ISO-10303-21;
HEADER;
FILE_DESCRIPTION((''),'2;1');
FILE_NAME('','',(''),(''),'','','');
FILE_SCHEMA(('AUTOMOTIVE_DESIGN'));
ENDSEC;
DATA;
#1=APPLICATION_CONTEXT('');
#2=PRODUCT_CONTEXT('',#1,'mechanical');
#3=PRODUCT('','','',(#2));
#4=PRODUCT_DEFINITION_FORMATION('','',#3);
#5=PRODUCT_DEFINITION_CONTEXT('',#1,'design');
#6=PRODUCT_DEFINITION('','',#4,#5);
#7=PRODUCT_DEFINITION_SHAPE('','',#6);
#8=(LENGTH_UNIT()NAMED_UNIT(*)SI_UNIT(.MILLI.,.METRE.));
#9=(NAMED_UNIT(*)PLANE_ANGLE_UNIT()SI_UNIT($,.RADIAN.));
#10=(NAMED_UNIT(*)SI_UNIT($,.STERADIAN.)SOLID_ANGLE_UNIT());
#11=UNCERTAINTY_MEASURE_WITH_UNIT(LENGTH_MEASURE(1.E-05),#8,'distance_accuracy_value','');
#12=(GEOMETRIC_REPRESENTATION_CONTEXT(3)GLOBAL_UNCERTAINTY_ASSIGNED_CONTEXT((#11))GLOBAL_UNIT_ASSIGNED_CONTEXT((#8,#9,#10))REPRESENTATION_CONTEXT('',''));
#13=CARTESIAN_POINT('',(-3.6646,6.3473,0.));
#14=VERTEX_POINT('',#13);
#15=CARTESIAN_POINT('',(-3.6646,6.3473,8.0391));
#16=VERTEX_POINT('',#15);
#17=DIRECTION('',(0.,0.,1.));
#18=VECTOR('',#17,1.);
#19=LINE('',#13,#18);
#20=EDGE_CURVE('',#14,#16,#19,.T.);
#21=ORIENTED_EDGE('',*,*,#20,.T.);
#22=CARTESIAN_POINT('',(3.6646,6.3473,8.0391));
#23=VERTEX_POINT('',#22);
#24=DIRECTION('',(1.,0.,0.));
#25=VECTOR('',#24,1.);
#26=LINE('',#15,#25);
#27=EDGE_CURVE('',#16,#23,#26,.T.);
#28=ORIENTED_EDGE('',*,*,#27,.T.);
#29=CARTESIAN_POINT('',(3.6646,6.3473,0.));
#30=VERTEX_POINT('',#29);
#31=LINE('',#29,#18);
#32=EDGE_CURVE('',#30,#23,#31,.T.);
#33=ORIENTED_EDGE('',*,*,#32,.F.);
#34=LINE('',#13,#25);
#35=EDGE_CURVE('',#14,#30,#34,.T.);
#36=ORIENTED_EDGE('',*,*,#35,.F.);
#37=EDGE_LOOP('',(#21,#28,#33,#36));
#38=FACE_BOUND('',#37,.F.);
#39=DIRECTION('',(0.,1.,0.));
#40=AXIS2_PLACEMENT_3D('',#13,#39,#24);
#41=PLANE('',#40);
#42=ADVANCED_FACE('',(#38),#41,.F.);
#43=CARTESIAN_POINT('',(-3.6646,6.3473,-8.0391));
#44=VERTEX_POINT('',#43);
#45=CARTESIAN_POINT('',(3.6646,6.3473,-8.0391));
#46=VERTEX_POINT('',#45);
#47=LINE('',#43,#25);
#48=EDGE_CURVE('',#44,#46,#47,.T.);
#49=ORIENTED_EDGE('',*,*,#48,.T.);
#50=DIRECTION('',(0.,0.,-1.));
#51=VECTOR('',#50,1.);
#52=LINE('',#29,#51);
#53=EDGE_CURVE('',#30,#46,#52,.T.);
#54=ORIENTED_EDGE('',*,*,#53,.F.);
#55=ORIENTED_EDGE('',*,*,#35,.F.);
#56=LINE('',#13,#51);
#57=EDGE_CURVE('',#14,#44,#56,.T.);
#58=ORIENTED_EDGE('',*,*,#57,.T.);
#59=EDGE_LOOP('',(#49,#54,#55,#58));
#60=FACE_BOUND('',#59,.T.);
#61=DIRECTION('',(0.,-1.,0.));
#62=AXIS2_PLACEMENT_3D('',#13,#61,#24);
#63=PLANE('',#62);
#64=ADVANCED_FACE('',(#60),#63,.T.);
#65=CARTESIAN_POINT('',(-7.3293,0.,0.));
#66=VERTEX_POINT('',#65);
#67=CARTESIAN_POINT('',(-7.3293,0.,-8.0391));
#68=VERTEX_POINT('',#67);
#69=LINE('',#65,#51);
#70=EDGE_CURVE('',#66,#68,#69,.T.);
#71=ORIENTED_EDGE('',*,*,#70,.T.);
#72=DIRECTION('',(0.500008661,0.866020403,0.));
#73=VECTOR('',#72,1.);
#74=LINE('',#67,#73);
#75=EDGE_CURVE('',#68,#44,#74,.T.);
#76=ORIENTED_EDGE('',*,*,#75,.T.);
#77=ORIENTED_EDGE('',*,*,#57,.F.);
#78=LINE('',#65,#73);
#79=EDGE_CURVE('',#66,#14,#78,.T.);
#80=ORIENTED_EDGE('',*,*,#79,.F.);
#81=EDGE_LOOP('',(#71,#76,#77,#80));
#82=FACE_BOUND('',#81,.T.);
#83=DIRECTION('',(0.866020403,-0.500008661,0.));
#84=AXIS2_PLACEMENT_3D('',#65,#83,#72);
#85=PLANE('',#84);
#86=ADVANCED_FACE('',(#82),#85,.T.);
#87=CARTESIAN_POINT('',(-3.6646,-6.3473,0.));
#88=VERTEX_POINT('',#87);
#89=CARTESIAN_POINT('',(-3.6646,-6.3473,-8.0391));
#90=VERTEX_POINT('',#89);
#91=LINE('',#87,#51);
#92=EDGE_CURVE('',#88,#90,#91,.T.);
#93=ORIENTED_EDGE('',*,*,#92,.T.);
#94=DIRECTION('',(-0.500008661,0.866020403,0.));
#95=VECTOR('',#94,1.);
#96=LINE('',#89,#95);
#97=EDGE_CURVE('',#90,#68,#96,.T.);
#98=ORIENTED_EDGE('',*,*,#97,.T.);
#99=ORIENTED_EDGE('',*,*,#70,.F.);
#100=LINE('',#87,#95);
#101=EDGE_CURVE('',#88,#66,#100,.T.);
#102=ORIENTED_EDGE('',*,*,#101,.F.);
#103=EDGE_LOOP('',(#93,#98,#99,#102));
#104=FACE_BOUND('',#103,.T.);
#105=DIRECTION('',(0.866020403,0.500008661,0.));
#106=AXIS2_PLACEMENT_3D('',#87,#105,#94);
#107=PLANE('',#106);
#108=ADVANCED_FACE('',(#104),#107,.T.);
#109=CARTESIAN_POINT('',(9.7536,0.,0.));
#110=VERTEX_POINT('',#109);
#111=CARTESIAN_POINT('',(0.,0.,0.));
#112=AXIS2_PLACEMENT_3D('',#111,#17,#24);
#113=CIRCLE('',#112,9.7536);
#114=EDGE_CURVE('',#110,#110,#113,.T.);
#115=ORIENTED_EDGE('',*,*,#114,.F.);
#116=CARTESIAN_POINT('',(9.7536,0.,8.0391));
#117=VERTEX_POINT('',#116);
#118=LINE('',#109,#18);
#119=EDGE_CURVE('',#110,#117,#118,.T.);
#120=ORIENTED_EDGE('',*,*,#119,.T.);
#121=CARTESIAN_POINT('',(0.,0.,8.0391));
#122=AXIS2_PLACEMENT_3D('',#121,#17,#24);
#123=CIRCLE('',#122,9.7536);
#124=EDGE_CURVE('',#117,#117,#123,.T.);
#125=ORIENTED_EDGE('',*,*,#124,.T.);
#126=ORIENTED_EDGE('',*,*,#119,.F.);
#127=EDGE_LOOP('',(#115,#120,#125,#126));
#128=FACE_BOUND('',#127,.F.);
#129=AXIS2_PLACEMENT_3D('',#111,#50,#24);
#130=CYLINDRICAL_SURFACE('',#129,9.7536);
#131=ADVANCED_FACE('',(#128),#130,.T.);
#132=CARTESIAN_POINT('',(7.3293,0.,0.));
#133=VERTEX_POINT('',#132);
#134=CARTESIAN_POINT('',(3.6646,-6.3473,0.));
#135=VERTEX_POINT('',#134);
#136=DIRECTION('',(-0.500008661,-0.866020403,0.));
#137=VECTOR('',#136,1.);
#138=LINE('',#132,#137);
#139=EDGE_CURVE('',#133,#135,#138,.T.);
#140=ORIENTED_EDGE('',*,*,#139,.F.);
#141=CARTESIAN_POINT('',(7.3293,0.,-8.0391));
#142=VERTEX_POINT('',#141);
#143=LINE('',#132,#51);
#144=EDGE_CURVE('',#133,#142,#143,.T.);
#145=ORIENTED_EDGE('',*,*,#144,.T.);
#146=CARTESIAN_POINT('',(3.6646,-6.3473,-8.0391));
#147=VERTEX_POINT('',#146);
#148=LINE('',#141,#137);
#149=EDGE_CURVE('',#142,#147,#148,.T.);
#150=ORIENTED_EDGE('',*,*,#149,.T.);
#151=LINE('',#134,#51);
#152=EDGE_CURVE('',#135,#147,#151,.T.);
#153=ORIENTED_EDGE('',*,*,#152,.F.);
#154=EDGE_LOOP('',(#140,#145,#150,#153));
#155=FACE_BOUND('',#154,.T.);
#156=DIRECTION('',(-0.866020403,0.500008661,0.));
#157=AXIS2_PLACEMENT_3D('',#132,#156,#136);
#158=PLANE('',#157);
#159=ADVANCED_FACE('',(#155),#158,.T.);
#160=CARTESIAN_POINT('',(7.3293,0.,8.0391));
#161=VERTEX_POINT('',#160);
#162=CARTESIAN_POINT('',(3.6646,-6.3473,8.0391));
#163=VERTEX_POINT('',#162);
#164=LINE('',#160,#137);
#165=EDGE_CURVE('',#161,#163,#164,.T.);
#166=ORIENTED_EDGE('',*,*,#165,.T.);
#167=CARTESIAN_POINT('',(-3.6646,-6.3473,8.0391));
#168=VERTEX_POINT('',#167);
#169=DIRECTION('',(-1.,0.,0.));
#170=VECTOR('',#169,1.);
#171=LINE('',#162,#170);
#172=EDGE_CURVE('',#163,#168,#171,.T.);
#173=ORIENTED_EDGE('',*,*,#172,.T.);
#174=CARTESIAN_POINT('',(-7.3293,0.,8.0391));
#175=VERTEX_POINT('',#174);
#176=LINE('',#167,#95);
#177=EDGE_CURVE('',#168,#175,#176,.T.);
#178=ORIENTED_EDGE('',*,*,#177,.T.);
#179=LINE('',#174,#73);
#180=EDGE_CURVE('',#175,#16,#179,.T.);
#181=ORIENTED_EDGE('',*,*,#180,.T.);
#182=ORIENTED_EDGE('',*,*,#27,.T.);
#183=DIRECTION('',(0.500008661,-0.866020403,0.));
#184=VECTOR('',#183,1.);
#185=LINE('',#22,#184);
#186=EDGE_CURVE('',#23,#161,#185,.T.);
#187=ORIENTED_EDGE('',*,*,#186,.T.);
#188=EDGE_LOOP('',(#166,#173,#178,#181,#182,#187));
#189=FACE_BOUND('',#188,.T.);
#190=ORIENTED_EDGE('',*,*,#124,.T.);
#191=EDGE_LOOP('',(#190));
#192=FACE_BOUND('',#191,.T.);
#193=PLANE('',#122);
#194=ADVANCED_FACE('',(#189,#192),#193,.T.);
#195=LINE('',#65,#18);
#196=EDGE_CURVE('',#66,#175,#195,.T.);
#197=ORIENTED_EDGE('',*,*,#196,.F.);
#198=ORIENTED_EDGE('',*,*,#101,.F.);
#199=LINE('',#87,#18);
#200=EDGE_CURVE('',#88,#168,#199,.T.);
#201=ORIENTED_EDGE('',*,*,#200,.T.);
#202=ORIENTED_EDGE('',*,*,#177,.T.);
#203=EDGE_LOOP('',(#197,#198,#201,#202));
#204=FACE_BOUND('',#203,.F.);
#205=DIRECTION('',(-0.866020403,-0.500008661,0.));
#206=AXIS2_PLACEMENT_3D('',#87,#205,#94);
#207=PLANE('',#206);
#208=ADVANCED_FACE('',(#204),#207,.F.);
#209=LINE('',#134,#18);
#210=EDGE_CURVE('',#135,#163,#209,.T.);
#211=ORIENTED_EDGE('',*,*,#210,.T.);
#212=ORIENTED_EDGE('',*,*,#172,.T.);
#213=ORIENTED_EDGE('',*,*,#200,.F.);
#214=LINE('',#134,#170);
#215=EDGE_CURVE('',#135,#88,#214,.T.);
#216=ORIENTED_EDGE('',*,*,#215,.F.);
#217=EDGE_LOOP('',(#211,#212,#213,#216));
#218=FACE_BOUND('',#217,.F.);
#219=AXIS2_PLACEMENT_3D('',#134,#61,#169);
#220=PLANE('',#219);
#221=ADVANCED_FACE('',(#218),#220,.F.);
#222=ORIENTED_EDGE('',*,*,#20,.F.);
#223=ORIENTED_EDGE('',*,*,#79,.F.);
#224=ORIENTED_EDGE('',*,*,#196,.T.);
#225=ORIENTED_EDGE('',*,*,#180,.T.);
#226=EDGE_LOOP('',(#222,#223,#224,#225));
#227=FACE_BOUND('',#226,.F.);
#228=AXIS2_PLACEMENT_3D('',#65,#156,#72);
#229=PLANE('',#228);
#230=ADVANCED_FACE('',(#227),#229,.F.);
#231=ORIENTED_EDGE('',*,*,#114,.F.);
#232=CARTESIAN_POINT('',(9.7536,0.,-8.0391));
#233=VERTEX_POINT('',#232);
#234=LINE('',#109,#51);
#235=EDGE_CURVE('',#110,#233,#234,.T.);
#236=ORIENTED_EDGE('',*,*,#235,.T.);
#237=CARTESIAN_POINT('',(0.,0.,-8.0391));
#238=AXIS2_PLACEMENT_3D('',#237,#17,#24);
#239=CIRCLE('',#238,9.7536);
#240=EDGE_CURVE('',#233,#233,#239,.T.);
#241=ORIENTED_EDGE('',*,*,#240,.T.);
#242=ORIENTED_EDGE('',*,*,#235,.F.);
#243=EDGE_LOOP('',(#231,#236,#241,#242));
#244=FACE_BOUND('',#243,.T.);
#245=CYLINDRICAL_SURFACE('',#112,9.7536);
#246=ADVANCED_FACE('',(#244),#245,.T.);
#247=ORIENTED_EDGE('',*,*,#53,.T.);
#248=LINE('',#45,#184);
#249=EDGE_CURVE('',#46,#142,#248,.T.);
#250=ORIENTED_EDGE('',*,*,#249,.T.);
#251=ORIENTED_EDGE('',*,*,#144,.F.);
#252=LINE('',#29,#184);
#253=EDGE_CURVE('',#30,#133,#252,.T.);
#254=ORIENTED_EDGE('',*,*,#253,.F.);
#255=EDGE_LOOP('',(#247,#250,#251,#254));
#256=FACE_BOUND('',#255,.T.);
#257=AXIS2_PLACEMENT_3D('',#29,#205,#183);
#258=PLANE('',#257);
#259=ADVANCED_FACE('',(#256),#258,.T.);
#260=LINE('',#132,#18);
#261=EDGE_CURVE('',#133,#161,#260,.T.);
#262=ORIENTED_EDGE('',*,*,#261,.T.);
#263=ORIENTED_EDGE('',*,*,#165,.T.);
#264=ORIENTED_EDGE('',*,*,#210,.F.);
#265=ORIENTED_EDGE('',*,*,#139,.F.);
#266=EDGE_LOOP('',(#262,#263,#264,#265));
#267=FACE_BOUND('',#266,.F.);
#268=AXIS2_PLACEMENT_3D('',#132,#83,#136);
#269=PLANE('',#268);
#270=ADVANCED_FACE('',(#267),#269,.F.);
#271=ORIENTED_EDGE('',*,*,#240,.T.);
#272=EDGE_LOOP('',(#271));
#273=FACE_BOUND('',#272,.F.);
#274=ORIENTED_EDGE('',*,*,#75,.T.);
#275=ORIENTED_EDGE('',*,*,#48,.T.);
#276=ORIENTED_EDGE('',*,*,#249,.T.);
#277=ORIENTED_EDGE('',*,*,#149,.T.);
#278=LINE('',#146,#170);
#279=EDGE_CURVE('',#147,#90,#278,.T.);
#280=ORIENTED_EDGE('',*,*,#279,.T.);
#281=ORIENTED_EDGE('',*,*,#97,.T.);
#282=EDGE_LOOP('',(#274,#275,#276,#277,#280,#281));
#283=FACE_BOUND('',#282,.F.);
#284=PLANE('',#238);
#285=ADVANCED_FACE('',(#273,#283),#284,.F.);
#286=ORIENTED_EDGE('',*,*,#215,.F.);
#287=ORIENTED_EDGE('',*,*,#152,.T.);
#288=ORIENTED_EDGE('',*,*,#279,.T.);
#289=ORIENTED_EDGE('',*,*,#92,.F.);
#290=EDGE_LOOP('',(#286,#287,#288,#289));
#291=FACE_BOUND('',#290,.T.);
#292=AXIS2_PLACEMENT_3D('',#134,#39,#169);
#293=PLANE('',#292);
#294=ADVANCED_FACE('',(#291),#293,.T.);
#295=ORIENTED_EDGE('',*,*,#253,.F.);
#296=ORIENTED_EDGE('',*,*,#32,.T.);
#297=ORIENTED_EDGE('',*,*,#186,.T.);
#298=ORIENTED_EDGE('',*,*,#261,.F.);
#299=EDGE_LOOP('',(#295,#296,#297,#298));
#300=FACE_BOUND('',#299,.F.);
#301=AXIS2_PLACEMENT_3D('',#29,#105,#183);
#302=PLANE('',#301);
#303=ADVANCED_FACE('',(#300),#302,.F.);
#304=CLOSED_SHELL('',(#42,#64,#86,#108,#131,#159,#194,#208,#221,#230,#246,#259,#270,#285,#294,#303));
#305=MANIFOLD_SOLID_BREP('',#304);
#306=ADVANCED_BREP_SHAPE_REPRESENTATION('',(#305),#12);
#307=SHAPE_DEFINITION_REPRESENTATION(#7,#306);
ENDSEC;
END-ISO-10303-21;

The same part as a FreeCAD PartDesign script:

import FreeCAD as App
import Part
import Sketcher
Q = App.Units.Quantity

doc = App.newDocument("Part")
params = doc.addObject("Spreadsheet::Sheet", "Params")
for row, (alias, value) in enumerate([
    ("sketch1_diameter", "0.768 in"),
    ("pad1_length", "0.633 in"),
], start=1):
    params.set(f"A{row}", alias)
    params.set(f"B{row}", "=" + value)
    params.setAlias(f"B{row}", alias)

body = doc.addObject("PartDesign::Body", "Body")

# Sketch on XY plane
sketch1 = body.newObject("Sketcher::SketchObject", "Sketch")
sketch1.AttachmentSupport = (doc.getObject("XY_Plane"), [""])
sketch1.MapMode = "FlatFace"
sketch1.addGeometry([
    Part.Circle(App.Vector(0, 0, 0), App.Vector(0, 0, 1), 9.7536),  # 0
    Part.LineSegment(App.Vector(3.6646, 6.3473, 0), App.Vector(7.3293, 0, 0)),  # 1
    Part.LineSegment(App.Vector(7.3293, 0, 0), App.Vector(3.6646, -6.3473, 0)),  # 2
    Part.LineSegment(App.Vector(3.6646, -6.3473, 0), App.Vector(-3.6646, -6.3473, 0)),  # 3
    Part.LineSegment(App.Vector(-3.6646, -6.3473, 0), App.Vector(-7.3293, 0, 0)),  # 4
    Part.LineSegment(App.Vector(-7.3293, 0, 0), App.Vector(-3.6646, 6.3473, 0)),  # 5
    Part.LineSegment(App.Vector(-3.6646, 6.3473, 0), App.Vector(3.6646, 6.3473, 0)),  # 6
], False)
sketch1.addConstraint([
    Sketcher.Constraint("Coincident", 1, 2, 2, 1),
    Sketcher.Constraint("Coincident", 2, 2, 3, 1),
    Sketcher.Constraint("Coincident", 3, 2, 4, 1),
    Sketcher.Constraint("Coincident", 4, 2, 5, 1),
    Sketcher.Constraint("Coincident", 5, 2, 6, 1),
    Sketcher.Constraint("Coincident", 6, 2, 1, 1),
    Sketcher.Constraint("Horizontal", 3),
    Sketcher.Constraint("Horizontal", 6),
    Sketcher.Constraint("Coincident", 0, 3, -1, 1),
    Sketcher.Constraint("Symmetric", 1, 2, 4, 2, -1, 1),
    Sketcher.Constraint("Symmetric", 2, 2, 5, 2, -1, 1),
    Sketcher.Constraint("PointOnObject", 1, 2, -1),
    Sketcher.Constraint("Parallel", 1, 4),
    Sketcher.Constraint("Vertical", 3, 2, 5, 2),
    Sketcher.Constraint("Diameter", 0, Q("0.768 in")),
    Sketcher.Constraint("Angle", 1, Q("-59.9994 deg")),
    Sketcher.Constraint("DistanceY", 3, 2, 5, 2, 12.6946),
    Sketcher.Constraint("DistanceX", 3, 2, 3, 1, 7.3292),
])
sketch1.setExpression("Constraints[14]", "Params.sketch1_diameter")
pad1 = body.newObject("PartDesign::Pad", "Pad")
pad1.Profile = sketch1
pad1.setExpression("Length", "Params.pad1_length")
pad1.Midplane = True

doc.recompute()
